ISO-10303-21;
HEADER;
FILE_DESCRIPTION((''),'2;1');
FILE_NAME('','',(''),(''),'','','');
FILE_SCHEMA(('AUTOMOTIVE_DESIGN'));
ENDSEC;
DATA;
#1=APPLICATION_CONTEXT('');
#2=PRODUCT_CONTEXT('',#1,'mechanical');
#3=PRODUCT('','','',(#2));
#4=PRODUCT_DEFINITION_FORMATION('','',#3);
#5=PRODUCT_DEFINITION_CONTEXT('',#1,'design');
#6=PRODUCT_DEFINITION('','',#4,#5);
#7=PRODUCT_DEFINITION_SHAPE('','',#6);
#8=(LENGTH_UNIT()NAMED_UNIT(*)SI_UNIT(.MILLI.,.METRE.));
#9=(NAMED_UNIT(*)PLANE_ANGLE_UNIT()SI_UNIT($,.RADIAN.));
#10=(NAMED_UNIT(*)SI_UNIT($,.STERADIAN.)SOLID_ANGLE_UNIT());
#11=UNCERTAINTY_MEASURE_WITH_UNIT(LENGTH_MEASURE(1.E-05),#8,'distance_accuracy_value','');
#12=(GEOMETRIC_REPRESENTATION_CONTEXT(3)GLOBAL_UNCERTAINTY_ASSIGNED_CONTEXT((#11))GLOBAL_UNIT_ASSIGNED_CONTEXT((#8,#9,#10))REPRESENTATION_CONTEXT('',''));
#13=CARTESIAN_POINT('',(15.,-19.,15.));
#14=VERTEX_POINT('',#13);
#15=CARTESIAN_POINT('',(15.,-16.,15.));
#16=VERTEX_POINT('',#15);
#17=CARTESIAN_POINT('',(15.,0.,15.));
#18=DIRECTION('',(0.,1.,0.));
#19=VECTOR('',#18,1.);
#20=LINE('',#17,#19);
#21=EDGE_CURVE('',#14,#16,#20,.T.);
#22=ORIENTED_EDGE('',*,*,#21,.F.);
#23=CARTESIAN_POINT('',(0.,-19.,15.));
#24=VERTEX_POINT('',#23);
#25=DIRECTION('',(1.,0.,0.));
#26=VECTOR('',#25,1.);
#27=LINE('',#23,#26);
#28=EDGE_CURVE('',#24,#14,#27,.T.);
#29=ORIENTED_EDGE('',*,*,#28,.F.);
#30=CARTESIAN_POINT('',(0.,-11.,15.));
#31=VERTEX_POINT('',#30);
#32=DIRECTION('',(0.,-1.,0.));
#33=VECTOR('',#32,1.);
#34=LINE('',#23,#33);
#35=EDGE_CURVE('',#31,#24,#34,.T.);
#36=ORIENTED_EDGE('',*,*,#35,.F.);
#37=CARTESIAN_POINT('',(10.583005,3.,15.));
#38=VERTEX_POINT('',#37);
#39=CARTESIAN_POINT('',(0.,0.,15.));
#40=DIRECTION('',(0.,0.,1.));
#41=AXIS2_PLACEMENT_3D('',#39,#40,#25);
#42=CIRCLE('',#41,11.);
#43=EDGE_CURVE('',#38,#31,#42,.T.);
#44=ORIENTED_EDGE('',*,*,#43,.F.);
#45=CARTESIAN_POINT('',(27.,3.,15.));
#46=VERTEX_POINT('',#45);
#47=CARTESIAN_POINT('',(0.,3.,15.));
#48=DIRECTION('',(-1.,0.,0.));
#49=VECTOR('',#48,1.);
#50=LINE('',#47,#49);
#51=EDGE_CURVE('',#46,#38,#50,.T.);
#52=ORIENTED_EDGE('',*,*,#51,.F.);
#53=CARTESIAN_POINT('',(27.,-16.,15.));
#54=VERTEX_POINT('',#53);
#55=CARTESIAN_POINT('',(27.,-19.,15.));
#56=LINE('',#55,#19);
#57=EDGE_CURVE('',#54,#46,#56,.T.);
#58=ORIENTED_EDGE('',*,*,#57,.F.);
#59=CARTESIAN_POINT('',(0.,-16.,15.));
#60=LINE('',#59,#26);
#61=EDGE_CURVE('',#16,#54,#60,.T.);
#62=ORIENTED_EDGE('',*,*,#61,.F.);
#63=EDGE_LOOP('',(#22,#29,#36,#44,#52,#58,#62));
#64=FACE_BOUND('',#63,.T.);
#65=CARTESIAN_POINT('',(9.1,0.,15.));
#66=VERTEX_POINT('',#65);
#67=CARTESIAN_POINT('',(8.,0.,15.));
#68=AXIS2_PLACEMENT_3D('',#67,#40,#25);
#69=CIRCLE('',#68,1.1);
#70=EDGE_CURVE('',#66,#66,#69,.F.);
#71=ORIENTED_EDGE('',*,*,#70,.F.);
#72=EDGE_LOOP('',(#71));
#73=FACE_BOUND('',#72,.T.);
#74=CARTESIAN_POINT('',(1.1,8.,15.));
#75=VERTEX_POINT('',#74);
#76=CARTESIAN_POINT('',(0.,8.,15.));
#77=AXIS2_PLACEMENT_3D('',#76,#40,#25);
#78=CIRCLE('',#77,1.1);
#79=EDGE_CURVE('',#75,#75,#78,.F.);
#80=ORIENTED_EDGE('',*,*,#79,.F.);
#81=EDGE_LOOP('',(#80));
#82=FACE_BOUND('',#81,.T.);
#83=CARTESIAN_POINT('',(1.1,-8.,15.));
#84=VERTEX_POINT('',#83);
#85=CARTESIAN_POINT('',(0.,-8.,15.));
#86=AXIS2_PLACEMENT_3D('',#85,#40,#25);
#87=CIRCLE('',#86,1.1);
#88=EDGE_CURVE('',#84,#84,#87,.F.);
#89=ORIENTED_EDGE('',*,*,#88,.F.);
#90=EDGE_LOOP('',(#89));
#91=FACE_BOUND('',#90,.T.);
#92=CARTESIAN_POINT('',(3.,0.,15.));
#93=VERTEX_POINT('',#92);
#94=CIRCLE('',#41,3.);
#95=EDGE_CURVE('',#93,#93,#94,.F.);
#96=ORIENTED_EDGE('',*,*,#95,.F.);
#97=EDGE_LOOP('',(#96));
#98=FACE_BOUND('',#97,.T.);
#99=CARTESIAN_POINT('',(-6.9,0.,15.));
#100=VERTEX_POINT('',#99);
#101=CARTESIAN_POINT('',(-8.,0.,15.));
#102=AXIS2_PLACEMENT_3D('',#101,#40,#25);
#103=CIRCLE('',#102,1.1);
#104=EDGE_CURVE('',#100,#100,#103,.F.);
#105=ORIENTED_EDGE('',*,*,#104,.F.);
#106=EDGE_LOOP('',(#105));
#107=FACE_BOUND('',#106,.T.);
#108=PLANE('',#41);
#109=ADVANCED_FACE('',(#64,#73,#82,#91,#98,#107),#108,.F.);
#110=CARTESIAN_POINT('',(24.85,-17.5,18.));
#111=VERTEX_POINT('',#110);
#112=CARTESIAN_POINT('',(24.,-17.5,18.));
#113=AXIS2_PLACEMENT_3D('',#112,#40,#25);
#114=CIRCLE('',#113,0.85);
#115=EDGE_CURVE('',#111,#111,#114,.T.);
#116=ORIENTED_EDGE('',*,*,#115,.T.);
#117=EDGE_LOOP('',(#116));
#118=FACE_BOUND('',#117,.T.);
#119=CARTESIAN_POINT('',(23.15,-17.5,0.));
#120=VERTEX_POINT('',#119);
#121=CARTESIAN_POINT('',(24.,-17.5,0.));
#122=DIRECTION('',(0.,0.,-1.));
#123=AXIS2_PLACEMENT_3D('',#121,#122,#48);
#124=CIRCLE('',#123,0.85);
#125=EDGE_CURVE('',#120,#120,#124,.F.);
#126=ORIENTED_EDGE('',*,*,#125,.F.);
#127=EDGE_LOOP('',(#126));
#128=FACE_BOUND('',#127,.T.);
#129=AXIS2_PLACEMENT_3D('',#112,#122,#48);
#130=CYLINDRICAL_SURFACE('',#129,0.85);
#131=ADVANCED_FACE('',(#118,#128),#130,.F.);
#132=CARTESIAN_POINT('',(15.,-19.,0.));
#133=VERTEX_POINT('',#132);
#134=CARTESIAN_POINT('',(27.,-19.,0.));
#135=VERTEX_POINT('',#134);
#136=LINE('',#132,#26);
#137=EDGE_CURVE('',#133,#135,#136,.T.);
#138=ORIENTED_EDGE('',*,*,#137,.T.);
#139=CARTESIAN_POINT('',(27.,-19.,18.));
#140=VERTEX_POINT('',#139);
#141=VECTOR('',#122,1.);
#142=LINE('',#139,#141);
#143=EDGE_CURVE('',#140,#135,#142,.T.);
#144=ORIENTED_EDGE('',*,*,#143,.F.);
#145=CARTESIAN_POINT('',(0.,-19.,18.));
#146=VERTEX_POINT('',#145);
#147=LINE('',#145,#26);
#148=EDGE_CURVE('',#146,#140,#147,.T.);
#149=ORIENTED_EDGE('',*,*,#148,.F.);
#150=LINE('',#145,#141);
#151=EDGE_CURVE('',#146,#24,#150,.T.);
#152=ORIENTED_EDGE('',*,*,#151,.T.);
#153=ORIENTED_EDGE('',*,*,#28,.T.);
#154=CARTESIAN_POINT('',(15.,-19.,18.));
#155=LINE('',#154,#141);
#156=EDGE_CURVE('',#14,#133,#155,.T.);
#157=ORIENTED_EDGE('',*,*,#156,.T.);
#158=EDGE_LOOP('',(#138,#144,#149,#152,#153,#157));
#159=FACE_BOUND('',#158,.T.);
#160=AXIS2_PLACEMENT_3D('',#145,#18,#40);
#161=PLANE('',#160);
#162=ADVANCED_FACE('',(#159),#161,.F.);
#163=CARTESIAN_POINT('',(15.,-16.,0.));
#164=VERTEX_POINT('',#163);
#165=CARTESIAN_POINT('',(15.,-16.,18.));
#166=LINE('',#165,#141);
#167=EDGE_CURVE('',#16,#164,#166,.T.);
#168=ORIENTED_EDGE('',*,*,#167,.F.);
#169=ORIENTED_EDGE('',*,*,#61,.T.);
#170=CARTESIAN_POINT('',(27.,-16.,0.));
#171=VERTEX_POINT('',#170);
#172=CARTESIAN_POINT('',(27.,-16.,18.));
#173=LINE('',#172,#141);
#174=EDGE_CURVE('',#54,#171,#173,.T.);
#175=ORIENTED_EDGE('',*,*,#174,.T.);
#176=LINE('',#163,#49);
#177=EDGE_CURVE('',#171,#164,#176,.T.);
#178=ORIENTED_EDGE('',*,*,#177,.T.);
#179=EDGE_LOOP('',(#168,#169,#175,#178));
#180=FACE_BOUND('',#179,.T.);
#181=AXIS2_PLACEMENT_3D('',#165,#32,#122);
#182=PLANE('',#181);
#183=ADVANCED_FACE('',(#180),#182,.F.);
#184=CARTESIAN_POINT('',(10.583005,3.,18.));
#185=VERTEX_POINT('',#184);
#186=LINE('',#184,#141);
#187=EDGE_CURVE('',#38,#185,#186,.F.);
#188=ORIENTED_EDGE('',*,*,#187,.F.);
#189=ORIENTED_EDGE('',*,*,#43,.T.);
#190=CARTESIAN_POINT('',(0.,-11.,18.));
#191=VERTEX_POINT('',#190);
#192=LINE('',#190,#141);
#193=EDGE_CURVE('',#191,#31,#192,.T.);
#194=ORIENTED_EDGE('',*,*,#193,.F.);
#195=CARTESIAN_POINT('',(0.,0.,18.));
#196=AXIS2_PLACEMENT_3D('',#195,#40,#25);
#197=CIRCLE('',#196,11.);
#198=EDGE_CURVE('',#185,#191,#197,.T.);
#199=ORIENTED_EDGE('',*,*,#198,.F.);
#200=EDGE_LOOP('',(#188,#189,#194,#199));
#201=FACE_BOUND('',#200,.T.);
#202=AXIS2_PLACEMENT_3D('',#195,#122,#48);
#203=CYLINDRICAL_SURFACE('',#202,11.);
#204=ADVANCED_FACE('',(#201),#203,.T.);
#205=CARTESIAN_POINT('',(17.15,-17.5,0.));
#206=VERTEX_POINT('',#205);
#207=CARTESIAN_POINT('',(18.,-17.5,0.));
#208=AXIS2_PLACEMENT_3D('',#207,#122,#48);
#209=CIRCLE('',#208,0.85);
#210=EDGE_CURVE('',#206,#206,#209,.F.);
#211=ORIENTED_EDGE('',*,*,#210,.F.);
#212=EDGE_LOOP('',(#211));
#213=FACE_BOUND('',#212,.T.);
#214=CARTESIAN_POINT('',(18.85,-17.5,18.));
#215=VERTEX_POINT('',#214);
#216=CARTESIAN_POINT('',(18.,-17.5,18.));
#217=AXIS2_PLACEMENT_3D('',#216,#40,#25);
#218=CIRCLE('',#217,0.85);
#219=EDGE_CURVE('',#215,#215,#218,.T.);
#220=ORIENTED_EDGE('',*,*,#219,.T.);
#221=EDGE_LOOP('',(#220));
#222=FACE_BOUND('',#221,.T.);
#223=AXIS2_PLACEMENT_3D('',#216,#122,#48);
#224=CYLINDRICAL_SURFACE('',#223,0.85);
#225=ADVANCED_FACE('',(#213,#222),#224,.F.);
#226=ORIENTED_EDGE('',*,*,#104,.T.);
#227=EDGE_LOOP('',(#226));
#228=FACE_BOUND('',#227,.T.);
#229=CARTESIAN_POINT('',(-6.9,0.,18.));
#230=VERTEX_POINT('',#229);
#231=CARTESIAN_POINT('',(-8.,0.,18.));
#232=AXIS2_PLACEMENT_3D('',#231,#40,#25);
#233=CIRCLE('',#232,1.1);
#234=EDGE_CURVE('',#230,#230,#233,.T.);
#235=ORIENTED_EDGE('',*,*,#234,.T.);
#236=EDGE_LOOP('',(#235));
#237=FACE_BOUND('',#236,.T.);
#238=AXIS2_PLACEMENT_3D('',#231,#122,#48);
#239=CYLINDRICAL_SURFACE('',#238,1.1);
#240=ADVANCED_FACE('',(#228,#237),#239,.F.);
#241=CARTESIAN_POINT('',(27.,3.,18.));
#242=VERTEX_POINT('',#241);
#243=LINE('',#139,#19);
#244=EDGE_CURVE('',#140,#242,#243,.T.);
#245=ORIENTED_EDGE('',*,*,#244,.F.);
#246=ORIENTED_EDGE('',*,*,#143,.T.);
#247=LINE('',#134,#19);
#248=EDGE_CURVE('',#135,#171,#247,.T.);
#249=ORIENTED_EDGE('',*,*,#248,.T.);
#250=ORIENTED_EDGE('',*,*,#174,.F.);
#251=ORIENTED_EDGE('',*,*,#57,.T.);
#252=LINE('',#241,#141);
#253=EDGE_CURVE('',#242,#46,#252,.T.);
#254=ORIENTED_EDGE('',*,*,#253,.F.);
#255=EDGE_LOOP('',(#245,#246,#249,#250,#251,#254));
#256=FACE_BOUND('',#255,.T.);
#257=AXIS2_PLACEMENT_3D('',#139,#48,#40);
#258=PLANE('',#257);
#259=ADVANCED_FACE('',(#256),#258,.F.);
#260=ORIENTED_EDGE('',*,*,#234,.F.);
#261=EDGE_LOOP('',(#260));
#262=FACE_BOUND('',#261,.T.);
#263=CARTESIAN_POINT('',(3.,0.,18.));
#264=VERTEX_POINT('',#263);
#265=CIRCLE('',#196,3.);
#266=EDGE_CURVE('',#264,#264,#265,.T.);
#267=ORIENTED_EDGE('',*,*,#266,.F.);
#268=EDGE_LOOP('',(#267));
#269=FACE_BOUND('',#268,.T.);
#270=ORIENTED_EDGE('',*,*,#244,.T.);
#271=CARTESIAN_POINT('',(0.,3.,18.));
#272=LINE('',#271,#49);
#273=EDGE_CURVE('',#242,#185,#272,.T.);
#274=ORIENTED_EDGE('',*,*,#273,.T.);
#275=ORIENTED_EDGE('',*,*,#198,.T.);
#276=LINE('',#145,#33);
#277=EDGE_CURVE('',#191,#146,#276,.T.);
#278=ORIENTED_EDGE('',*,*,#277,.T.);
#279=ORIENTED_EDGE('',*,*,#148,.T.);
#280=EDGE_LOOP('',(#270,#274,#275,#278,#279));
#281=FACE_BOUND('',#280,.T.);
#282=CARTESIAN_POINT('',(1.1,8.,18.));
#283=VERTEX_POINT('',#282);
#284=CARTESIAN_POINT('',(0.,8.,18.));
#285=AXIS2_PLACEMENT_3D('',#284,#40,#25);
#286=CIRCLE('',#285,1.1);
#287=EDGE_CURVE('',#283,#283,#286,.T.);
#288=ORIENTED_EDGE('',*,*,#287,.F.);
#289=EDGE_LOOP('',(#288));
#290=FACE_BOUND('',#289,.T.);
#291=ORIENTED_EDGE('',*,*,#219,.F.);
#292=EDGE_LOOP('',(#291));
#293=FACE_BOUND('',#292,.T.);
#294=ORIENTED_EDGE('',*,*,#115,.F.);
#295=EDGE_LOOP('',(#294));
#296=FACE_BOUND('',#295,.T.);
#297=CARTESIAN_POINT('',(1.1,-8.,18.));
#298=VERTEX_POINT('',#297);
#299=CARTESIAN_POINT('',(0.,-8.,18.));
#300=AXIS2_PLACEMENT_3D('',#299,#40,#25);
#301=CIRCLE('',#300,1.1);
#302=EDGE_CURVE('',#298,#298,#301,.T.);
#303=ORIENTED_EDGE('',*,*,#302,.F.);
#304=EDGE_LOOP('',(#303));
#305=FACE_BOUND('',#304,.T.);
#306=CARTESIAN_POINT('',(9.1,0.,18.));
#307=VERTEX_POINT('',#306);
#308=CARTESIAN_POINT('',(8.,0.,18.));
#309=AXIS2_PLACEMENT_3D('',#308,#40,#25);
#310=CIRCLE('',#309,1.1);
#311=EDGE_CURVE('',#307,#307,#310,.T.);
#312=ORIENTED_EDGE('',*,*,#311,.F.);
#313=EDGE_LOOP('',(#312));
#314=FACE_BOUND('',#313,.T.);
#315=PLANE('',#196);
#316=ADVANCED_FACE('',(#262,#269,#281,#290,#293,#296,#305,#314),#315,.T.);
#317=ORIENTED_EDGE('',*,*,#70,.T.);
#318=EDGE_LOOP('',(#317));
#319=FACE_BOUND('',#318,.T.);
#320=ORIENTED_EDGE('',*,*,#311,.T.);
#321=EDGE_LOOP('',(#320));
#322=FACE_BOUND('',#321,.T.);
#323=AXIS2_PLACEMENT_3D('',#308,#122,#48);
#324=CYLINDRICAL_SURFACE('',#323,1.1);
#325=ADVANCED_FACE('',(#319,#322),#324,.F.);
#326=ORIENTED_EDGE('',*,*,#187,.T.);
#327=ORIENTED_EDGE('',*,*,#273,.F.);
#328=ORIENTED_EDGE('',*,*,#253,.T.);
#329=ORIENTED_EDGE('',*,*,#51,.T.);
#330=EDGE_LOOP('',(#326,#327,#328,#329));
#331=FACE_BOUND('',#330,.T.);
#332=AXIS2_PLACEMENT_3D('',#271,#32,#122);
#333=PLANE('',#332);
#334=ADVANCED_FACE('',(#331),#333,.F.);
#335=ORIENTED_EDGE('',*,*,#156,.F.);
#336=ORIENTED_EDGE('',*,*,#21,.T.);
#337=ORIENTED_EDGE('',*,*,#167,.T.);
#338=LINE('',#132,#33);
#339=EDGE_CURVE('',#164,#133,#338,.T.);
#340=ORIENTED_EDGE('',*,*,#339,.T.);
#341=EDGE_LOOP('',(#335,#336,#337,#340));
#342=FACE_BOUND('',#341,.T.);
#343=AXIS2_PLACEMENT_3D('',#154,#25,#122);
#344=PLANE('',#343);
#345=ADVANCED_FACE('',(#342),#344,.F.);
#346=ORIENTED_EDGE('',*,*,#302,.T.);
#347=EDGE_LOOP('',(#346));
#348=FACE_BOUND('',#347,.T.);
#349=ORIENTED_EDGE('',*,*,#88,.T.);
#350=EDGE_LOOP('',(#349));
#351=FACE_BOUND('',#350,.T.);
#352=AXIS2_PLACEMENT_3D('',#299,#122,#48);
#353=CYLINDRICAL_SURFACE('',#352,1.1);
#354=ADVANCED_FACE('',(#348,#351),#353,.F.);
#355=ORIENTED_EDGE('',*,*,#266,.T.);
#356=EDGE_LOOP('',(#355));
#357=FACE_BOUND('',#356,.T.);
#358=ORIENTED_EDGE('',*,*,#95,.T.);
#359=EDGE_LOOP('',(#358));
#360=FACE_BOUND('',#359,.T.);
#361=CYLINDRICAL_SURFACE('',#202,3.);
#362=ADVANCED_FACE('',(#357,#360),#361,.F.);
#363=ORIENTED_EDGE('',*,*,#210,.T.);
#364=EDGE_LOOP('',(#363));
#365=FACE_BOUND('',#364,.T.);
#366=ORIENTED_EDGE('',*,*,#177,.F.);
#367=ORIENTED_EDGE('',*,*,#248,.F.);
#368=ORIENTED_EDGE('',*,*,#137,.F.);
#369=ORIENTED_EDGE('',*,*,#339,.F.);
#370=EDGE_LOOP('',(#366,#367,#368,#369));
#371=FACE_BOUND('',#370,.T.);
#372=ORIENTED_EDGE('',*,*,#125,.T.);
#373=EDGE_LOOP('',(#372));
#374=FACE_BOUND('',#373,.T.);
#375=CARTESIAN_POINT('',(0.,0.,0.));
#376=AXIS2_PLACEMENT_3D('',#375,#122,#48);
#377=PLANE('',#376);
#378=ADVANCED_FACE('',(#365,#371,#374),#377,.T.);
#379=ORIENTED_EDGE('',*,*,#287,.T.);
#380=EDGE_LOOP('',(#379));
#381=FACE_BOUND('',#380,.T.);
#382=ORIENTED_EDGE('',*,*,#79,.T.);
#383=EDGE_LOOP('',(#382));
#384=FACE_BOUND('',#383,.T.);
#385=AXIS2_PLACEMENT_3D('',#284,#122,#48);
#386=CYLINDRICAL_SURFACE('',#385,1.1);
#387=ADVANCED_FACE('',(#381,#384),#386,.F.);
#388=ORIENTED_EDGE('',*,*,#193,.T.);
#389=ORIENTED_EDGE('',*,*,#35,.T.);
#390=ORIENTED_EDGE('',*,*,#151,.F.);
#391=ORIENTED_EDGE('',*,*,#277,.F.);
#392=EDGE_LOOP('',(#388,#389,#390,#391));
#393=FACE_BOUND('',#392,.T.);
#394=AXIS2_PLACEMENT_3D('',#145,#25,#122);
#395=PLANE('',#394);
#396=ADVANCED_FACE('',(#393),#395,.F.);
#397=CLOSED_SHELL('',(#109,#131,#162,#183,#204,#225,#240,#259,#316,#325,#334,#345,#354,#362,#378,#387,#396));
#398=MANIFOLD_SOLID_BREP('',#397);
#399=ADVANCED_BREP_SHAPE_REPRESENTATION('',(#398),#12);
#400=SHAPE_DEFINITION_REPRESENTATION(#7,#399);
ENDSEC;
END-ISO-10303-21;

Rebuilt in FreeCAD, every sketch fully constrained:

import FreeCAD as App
import Part
import Sketcher

V = App.Vector


def add_polygon(sketch, points):
    """Adds a closed chain of lines whose ends are joined by coincident constraints."""
    first, n = sketch.GeometryCount, len(points)
    for a, b in zip(points, points[1:] + points[:1]):
        sketch.addGeometry(Part.LineSegment(App.Vector(*a, 0), App.Vector(*b, 0)), False)
    for i in range(n):
        sketch.addConstraint(Sketcher.Constraint("Coincident", first + i, 2, first + (i + 1) % n, 1))

doc = App.newDocument("Part")
body = doc.addObject("PartDesign::Body", "Body")

# Sketch on XY plane
sketch1 = body.newObject("Sketcher::SketchObject", "Sketch")
sketch1.AttachmentSupport = (doc.getObject("XY_Plane"), [""])
sketch1.MapMode = "FlatFace"
sketch1.AttachmentOffset = App.Placement(V(0, 0, 15), App.Rotation())
sketch1.addGeometry(Part.Circle(V(0, 0, 0), V(0, 0, 1), 11), False)
sketch1.addConstraint([
    Sketcher.Constraint("Coincident", 0, 3, -1, 1),
    Sketcher.Constraint("Diameter", 0, 22.0),
])
pad1 = body.newObject("PartDesign::Pad", "Pad")
pad1.Profile = sketch1
pad1.Length = 3

# Sketch on XY plane
sketch2 = body.newObject("Sketcher::SketchObject", "Sketch001")
sketch2.AttachmentSupport = (doc.getObject("XY_Plane"), [""])
sketch2.MapMode = "FlatFace"
sketch2.AttachmentOffset = App.Placement(V(0, 0, 15), App.Rotation())
add_polygon(sketch2, [(0, 3), (0, -19), (27, -19), (27, 3)])  # lines 0-3
sketch2.addConstraint([
    Sketcher.Constraint("Vertical", 0),
    Sketcher.Constraint("Horizontal", 1),
    Sketcher.Constraint("Vertical", 2),
    Sketcher.Constraint("Horizontal", 3),
    Sketcher.Constraint("PointOnObject", 0, 2, -2),
    Sketcher.Constraint("DistanceX", 1, 1, 1, 2, 27.0),
    Sketcher.Constraint("DistanceY", 0, 2, 0, 1, 22.0),
    Sketcher.Constraint("DistanceY", 0, 2, -1, 1, 19.0),
])
pad2 = body.newObject("PartDesign::Pad", "Pad001")
pad2.Profile = sketch2
pad2.Length = 3

# Sketch on XY plane
sketch3 = body.newObject("Sketcher::SketchObject", "Sketch002")
sketch3.AttachmentSupport = (doc.getObject("XY_Plane"), [""])
sketch3.MapMode = "FlatFace"
add_polygon(sketch3, [(15, -16), (15, -19), (27, -19), (27, -16)])  # lines 0-3
sketch3.addConstraint([
    Sketcher.Constraint("Vertical", 0),
    Sketcher.Constraint("Horizontal", 1),
    Sketcher.Constraint("Vertical", 2),
    Sketcher.Constraint("Horizontal", 3),
    Sketcher.Constraint("DistanceX", 1, 1, 1, 2, 12.0),
    Sketcher.Constraint("DistanceY", 0, 2, 0, 1, 3.0),
    Sketcher.Constraint("DistanceX", -1, 1, 0, 2, 15.0),
    Sketcher.Constraint("DistanceY", 0, 2, -1, 1, 19.0),
])
pad3 = body.newObject("PartDesign::Pad", "Pad002")
pad3.Profile = sketch3
pad3.Length = 18

# Sketch on XY plane
sketch4 = body.newObject("Sketcher::SketchObject", "Sketch003")
sketch4.AttachmentSupport = (doc.getObject("XY_Plane"), [""])
sketch4.MapMode = "FlatFace"
sketch4.AttachmentOffset = App.Placement(V(0, 0, -50), App.Rotation())
sketch4.addGeometry(Part.Circle(V(0, 0, 0), V(0, 0, 1), 3), False)
sketch4.addConstraint([
    Sketcher.Constraint("Coincident", 0, 3, -1, 1),
    Sketcher.Constraint("Diameter", 0, 6.0),
])
pocket1 = body.newObject("PartDesign::Pocket", "Pocket")
pocket1.Profile = sketch4
pocket1.Type = "ThroughAll"
pocket1.Reversed = True

# Sketch on XY plane
sketch5 = body.newObject("Sketcher::SketchObject", "Sketch004")
sketch5.AttachmentSupport = (doc.getObject("XY_Plane"), [""])
sketch5.MapMode = "FlatFace"
sketch5.AttachmentOffset = App.Placement(V(0, 0, -50), App.Rotation())
sketch5.addGeometry([
    Part.Circle(V(0, -8, 0), V(0, 0, 1), 1.1),
    Part.Circle(V(0, 8, 0), V(0, 0, 1), 1.1),
    Part.Circle(V(-8, 0, 0), V(0, 0, 1), 1.1),
    Part.Circle(V(8, 0, 0), V(0, 0, 1), 1.1),
], False)
sketch5.addConstraint([
    Sketcher.Constraint("Equal", 0, 1),
    Sketcher.Constraint("Equal", 1, 2),
    Sketcher.Constraint("Equal", 2, 3),
    Sketcher.Constraint("Symmetric", 0, 3, 1, 3, -1, 1),
    Sketcher.Constraint("Symmetric", 2, 3, 3, 3, -1, 1),
    Sketcher.Constraint("PointOnObject", 0, 3, -2),
    Sketcher.Constraint("PointOnObject", 2, 3, -1),
    Sketcher.Constraint("Diameter", 0, 2.2),
    Sketcher.Constraint("DistanceY", 0, 3, -1, 1, 8.0),
    Sketcher.Constraint("DistanceX", 2, 3, -1, 1, 8.0),
])
pocket2 = body.newObject("PartDesign::Pocket", "Pocket001")
pocket2.Profile = sketch5
pocket2.Type = "ThroughAll"
pocket2.Reversed = True

# Sketch on XY plane
sketch6 = body.newObject("Sketcher::SketchObject", "Sketch005")
sketch6.AttachmentSupport = (doc.getObject("XY_Plane"), [""])
sketch6.MapMode = "FlatFace"
sketch6.AttachmentOffset = App.Placement(V(0, 0, -50), App.Rotation())
sketch6.addGeometry([
    Part.Circle(V(18, -17.5, 0), V(0, 0, 1), 0.8),
    Part.Circle(V(24, -17.5, 0), V(0, 0, 1), 0.8),
], False)
sketch6.addConstraint([
    Sketcher.Constraint("Equal", 0, 1),
    Sketcher.Constraint("Horizontal", 0, 3, 1, 3),
    Sketcher.Constraint("Diameter", 0, 1.7),
    Sketcher.Constraint("DistanceX", -1, 1, 0, 3, 18.0),
    Sketcher.Constraint("DistanceX", -1, 1, 1, 3, 24.0),
    Sketcher.Constraint("DistanceY", 0, 3, -1, 1, 17.5),
])
pocket3 = body.newObject("PartDesign::Pocket", "Pocket002")
pocket3.Profile = sketch6
pocket3.Type = "ThroughAll"
pocket3.Reversed = True

doc.recompute()
